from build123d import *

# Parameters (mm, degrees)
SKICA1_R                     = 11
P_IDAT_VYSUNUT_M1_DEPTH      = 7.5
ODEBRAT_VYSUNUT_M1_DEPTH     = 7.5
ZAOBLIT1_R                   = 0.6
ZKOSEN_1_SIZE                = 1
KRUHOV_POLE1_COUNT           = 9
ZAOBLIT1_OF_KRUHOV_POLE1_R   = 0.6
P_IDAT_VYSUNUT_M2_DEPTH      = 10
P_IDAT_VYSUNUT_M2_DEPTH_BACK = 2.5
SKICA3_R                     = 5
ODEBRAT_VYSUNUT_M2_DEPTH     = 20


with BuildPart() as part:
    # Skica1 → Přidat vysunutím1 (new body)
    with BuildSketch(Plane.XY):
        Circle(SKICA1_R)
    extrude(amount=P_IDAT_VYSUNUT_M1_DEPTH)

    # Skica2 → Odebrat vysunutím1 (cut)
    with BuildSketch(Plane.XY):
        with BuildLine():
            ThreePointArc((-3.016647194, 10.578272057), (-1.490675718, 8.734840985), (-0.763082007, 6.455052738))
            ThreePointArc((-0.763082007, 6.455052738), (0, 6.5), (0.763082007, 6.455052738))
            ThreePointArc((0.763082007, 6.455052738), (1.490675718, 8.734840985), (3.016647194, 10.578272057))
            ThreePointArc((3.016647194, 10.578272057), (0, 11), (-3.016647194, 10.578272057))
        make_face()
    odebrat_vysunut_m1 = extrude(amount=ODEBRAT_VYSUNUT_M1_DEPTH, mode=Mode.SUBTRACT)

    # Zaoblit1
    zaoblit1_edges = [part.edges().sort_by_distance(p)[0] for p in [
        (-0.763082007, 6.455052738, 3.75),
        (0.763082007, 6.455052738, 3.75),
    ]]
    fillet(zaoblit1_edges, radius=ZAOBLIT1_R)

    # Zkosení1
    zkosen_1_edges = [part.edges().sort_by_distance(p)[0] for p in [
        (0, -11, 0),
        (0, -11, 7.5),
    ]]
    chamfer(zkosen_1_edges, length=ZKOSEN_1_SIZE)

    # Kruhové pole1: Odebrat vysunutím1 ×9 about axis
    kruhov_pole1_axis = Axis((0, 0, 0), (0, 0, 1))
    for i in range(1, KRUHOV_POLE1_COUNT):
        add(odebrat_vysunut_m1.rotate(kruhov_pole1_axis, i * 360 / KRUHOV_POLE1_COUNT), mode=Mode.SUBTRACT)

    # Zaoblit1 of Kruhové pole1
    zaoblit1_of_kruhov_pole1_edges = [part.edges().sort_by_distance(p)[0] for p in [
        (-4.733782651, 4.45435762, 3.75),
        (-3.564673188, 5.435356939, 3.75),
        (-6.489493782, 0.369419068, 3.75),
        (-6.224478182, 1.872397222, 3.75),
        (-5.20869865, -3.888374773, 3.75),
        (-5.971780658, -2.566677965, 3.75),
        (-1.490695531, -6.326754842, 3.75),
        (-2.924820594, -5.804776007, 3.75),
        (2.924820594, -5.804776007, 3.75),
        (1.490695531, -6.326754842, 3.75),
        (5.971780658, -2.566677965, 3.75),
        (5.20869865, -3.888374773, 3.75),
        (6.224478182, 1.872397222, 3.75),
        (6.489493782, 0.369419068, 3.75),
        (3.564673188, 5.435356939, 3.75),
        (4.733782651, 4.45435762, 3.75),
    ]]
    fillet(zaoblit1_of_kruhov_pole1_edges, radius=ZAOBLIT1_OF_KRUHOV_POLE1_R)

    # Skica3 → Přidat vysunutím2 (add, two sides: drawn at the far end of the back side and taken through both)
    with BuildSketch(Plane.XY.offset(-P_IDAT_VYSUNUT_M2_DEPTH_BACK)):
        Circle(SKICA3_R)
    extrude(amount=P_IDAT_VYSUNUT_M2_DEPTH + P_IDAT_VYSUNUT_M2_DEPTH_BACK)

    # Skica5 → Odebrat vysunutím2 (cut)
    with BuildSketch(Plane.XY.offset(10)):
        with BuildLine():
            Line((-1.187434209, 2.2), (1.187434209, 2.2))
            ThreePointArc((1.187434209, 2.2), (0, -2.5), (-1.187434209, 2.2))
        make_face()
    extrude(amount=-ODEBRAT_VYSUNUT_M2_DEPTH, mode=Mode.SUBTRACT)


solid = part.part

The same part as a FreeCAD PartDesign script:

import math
import FreeCAD as App
import Part
import Sketcher
from FreeCAD import Vector
Q = App.Units.Quantity


def edges_at(feature, points):
    """Names of the edges that pass closest to the given points."""
    edges = feature.Shape.Edges
    near = lambda p: min(range(len(edges)), key=lambda i: edges[i].distToShape(Part.Vertex(*p))[0])
    return sorted({f"Edge{near(p) + 1}" for p in points})

doc = App.newDocument("Part")
body = doc.addObject("PartDesign::Body", "Body")

# Sketch on XY plane
sketch1 = doc.addObject("Sketcher::SketchObject", "Sketch")
body.addObject(sketch1)
sketch1.AttachmentSupport = (doc.XY_Plane, [""])
sketch1.MapMode = "FlatFace"
sketch1.addGeometry(Part.Circle(Vector(0, 0, 0), Vector(0, 0, 1), 11), False)
sketch1.addConstraint(Sketcher.Constraint("Coincident", 0, 3, -1, 1))
sketch1.addConstraint(Sketcher.Constraint("Diameter", 0, Q("22 mm")))
pad1 = doc.addObject("PartDesign::Pad", "Pad")
body.addObject(pad1)
pad1.Profile = sketch1
pad1.Length = 7.5

# Sketch on XY plane
sketch2 = doc.addObject("Sketcher::SketchObject", "Sketch001")
body.addObject(sketch2)
sketch2.AttachmentSupport = (doc.XY_Plane, [""])
sketch2.MapMode = "FlatFace"
sketch2.addGeometry(Part.ArcOfCircle(Part.Circle(Vector(-7, 5.7, 0), Vector(0, 0, 1), 6.3), math.radians(7), math.radians(51)), False)
sketch2.addGeometry(Part.ArcOfCircle(Part.Circle(Vector(0, 0, 0), Vector(0, 0, 1), 6.5), math.radians(83.26), math.radians(96.74)), False)
sketch2.addGeometry(Part.ArcOfCircle(Part.Circle(Vector(7, 5.7, 0), Vector(0, 0, 1), 6.3), math.radians(129), math.radians(173)), False)
sketch2.addGeometry(Part.ArcOfCircle(Part.Circle(Vector(0, 0, 0), Vector(0, 0, 1), 11), math.radians(74), math.radians(106)), False)
sketch2.addConstraint(Sketcher.Constraint("Coincident", 0, 1, 1, 2))
sketch2.addConstraint(Sketcher.Constraint("Coincident", 1, 1, 2, 2))
sketch2.addConstraint(Sketcher.Constraint("Coincident", 2, 1, 3, 1))
sketch2.addConstraint(Sketcher.Constraint("Coincident", 3, 2, 0, 2))
sketch2.addConstraint(Sketcher.Constraint("Coincident", 1, 3, -1, 1))
sketch2.addConstraint(Sketcher.Constraint("Coincident", 3, 3, -1, 1))
sketch2.addConstraint(Sketcher.Constraint("Equal", 0, 2))
sketch2.addConstraint(Sketcher.Constraint("Symmetric", 0, 3, 2, 3, -2))
sketch2.addConstraint(Sketcher.Constraint("Radius", 3, Q("11 mm")))
sketch2.addConstraint(Sketcher.Constraint("Radius", 1, Q("6.5 mm")))
sketch2.addConstraint(Sketcher.Constraint("Radius", 0, Q("6.294301 mm")))
sketch2.addConstraint(Sketcher.Constraint("DistanceX", 0, 3, -1, 1, Q("7.013858 mm")))
sketch2.addConstraint(Sketcher.Constraint("DistanceY", -1, 1, 0, 3, Q("5.716119 mm")))
pocket1 = doc.addObject("PartDesign::Pocket", "Pocket")
body.addObject(pocket1)
pocket1.Profile = sketch2
pocket1.Length = 7.5
pocket1.Reversed = True
doc.recompute()

fillet = doc.addObject("PartDesign::Fillet", "Fillet")
body.addObject(fillet)
fillet.Base = (pocket1, edges_at(pocket1, [(-0.763, 6.455, 3.75), (0.763, 6.455, 3.75)]))
fillet.Radius = 0.6
doc.recompute()

chamfer = doc.addObject("PartDesign::Chamfer", "Chamfer")
body.addObject(chamfer)
chamfer.Base = (fillet, edges_at(fillet, [(0, -11, 0), (0, -11, 7.5)]))
chamfer.Size = 1
doc.recompute()

polarpattern = doc.addObject("PartDesign::PolarPattern", "PolarPattern")
body.addObject(polarpattern)
polarpattern.Originals = [pocket1]
polarpattern.Axis = (doc.Z_Axis, [""])
polarpattern.Angle = 360
polarpattern.Occurrences = 9
body.Tip = polarpattern
doc.recompute()

fillet2 = doc.addObject("PartDesign::Fillet", "Fillet001")
body.addObject(fillet2)
fillet2.Base = (polarpattern, edges_at(polarpattern, [
    (-4.734, 4.454, 3.75),
    (-3.565, 5.435, 3.75),
    (-6.489, 0.369, 3.75),
    (-6.224, 1.872, 3.75),
    (-5.209, -3.888, 3.75),
    (-5.972, -2.567, 3.75),
    (-1.491, -6.327, 3.75),
    (-2.925, -5.805, 3.75),
    (2.925, -5.805, 3.75),
    (1.491, -6.327, 3.75),
    (5.972, -2.567, 3.75),
    (5.209, -3.888, 3.75),
    (6.224, 1.872, 3.75),
    (6.489, 0.369, 3.75),
    (3.565, 5.435, 3.75),
    (4.734, 4.454, 3.75),
]))
fillet2.Radius = 0.6

# Sketch on XY plane
sketch3 = doc.addObject("Sketcher::SketchObject", "Sketch002")
body.addObject(sketch3)
sketch3.AttachmentSupport = (doc.XY_Plane, [""])
sketch3.MapMode = "FlatFace"
sketch3.addGeometry(Part.Circle(Vector(0, 0, 0), Vector(0, 0, 1), 5), False)
sketch3.addConstraint(Sketcher.Constraint("Coincident", 0, 3, -1, 1))
sketch3.addConstraint(Sketcher.Constraint("Diameter", 0, Q("10 mm")))
pad2 = doc.addObject("PartDesign::Pad", "Pad001")
body.addObject(pad2)
pad2.Profile = sketch3
pad2.Type = "TwoLengths"
pad2.Length = 10
pad2.Length2 = 2.5

# Sketch on XY plane
sketch4 = doc.addObject("Sketcher::SketchObject", "Sketch003")
body.addObject(sketch4)
sketch4.AttachmentSupport = (doc.XY_Plane, [""])
sketch4.MapMode = "FlatFace"
sketch4.AttachmentOffset = App.Placement(Vector(0, 0, 10), App.Rotation())
sketch4.addGeometry(Part.LineSegment(Vector(1.2, 2.2, 0), Vector(-1.2, 2.2, 0)), False)
sketch4.addGeometry(Part.ArcOfCircle(Part.Circle(Vector(0, 0, 0), Vector(0, 0, 1), 2.5), math.radians(118), math.radians(422)), False)
sketch4.addConstraint(Sketcher.Constraint("Coincident", 0, 1, 1, 2))
sketch4.addConstraint(Sketcher.Constraint("Coincident", 1, 1, 0, 2))
sketch4.addConstraint(Sketcher.Constraint("Horizontal", 0))
sketch4.addConstraint(Sketcher.Constraint("Coincident", 1, 3, -1, 1))
sketch4.addConstraint(Sketcher.Constraint("Radius", 1, Q("2.5 mm")))
sketch4.addConstraint(Sketcher.Constraint("DistanceY", -1, 1, 0, 1, Q("2.2 mm")))
pocket2 = doc.addObject("PartDesign::Pocket", "Pocket001")
body.addObject(pocket2)
pocket2.Profile = sketch4
pocket2.Length = 20

doc.recompute()
